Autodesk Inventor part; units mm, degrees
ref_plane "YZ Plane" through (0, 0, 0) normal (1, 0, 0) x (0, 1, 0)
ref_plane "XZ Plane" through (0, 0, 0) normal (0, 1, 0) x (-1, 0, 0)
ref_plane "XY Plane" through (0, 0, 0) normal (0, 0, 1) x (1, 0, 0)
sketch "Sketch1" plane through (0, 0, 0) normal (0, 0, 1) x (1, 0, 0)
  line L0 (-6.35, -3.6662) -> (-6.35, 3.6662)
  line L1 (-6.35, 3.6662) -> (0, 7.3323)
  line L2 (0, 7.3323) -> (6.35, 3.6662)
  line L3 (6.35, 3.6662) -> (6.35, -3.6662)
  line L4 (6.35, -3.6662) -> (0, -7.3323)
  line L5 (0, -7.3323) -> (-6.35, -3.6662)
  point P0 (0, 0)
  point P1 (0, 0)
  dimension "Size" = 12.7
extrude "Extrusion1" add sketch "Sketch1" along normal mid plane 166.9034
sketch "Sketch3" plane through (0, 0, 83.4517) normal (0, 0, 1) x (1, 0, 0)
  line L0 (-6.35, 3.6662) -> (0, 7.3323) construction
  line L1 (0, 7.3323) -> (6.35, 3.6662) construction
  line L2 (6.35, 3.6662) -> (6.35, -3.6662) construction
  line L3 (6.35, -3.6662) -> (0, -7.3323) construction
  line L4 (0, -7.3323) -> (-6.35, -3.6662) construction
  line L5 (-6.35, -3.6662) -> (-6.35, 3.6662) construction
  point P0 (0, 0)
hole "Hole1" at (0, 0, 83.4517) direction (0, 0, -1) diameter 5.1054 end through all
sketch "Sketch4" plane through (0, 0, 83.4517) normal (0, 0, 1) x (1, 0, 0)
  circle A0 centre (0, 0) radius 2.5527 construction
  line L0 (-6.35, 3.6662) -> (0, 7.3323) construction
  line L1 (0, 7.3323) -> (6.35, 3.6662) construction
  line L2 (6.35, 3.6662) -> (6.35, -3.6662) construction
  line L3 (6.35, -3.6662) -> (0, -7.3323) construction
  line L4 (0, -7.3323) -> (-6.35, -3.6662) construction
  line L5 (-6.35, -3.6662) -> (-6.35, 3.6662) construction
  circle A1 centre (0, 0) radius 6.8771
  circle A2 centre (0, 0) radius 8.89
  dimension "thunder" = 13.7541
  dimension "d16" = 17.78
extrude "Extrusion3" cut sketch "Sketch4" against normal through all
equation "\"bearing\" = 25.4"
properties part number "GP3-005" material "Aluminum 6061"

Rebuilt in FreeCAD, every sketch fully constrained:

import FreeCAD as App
import Part
import Sketcher
Q = App.Units.Quantity


def add_polygon(sketch, points):
    """Adds a closed chain of lines whose ends are joined by coincident constraints."""
    first, n = sketch.GeometryCount, len(points)
    for a, b in zip(points, points[1:] + points[:1]):
        sketch.addGeometry(Part.LineSegment(App.Vector(*a, 0), App.Vector(*b, 0)), False)
    for i in range(n):
        sketch.addConstraint(Sketcher.Constraint("Coincident", first + i, 2, first + (i + 1) % n, 1))

doc = App.newDocument("Part")
body = doc.addObject("PartDesign::Body", "Body")

sketch1 = body.newObject("Sketcher::SketchObject", "Sketch")
sketch1.AttachmentSupport = (doc.getObject("XY_Plane"), [""])
sketch1.MapMode = "FlatFace"
add_polygon(sketch1, [(-6, 4), (-6, -4), (0, -7), (6, -4), (6, 4), (0, 7)])
sketch1.addConstraint(Sketcher.Constraint("Vertical", 0))
sketch1.addConstraint(Sketcher.Constraint("Vertical", 3))
sketch1.addConstraint(Sketcher.Constraint("Symmetric", 0, 2, 3, 2, -1, 1))
sketch1.addConstraint(Sketcher.Constraint("Symmetric", 1, 2, 4, 2, -1, 1))
sketch1.addConstraint(Sketcher.Constraint("PointOnObject", 1, 2, -2))
sketch1.addConstraint(Sketcher.Constraint("Parallel", 2, 5))
sketch1.addConstraint(Sketcher.Constraint("Horizontal", 0, 2, 2, 2))
sketch1.addConstraint(Sketcher.Constraint("DistanceX", 0, 2, 2, 2, Q("0.5 in")))
sketch1.addConstraint(Sketcher.Constraint("Angle", 1, Q("-29.9995 deg")))
sketch1.addConstraint(Sketcher.Constraint("DistanceY", 1, 2, 3, 2, Q("0.433 in")))
pad1 = body.newObject("PartDesign::Pad", "Pad")
pad1.Profile = sketch1
pad1.Length = Q("6.571 in")
pad1.Midplane = True

sketch2 = body.newObject("Sketcher::SketchObject", "Sketch001")
sketch2.AttachmentSupport = (doc.getObject("XY_Plane"), [""])
sketch2.MapMode = "FlatFace"
sketch2.AttachmentOffset = App.Placement(App.Vector(0, 0, 3.2855 * 25.4), App.Rotation())
sketch2.addGeometry(Part.Circle(App.Vector(0, 0, 0), App.Vector(0, 0, 1), 2.6), False)
sketch2.addConstraint(Sketcher.Constraint("Coincident", 0, 3, -1, 1))
sketch2.addConstraint(Sketcher.Constraint("Diameter", 0, Q("0.201 in")))
doc.recompute()
hole = body.newObject("PartDesign::Hole", "Hole")
hole.Profile = sketch2
hole.ThreadType = "None"
hole.Diameter = Q("0.201 in")
hole.DepthType = "ThroughAll"

sketch3 = body.newObject("Sketcher::SketchObject", "Sketch002")
sketch3.AttachmentSupport = (doc.getObject("XY_Plane"), [""])
sketch3.MapMode = "FlatFace"
sketch3.AttachmentOffset = App.Placement(App.Vector(0, 0, 3.2855 * 25.4), App.Rotation())
sketch3.addGeometry(Part.Circle(App.Vector(0, 0, 0), App.Vector(0, 0, 1), 9), False)
sketch3.addGeometry(Part.Circle(App.Vector(0, 0, 0), App.Vector(0, 0, 1), 7), False)
sketch3.addConstraint(Sketcher.Constraint("Coincident", 0, 3, -1, 1))
sketch3.addConstraint(Sketcher.Constraint("Coincident", 1, 3, -1, 1))
sketch3.addConstraint(Sketcher.Constraint("Diameter", 0, Q("0.7 in")))
sketch3.addConstraint(Sketcher.Constraint("Diameter", 1, Q("0.5415 in")))
pocket1 = body.newObject("PartDesign::Pocket", "Pocket")
pocket1.Profile = sketch3
pocket1.Type = "ThroughAll"

doc.recompute()
